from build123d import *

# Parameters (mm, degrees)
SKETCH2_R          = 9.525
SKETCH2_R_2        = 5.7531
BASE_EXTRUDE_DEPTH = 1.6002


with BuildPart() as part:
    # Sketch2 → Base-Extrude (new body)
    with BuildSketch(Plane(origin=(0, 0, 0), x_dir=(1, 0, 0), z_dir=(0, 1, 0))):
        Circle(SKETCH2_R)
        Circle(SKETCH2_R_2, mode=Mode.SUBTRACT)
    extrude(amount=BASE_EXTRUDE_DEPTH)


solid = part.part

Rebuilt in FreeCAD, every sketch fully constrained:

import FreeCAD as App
import Part
import Sketcher

V = App.Vector
Q = App.Units.Quantity

doc = App.newDocument("Part")
body = doc.addObject("PartDesign::Body", "Body")

# Sketch on XZ plane
sketch1 = body.newObject("Sketcher::SketchObject", "Sketch")
sketch1.AttachmentSupport = (doc.getObject("XZ_Plane"), [""])
sketch1.MapMode = "FlatFace"
sketch1.addGeometry(Part.Circle(V(0, 0, 0), V(0, 0, 1), 10), False)
sketch1.addGeometry(Part.Circle(V(0, 0, 0), V(0, 0, 1), 6), False)
sketch1.addConstraint(Sketcher.Constraint("Coincident", 0, 3, -1, 1))
sketch1.addConstraint(Sketcher.Constraint("Coincident", 1, 3, -1, 1))
sketch1.addConstraint(Sketcher.Constraint("Diameter", 0, Q("0.75 in")))
sketch1.addConstraint(Sketcher.Constraint("Diameter", 1, Q("0.453 in")))
pad1 = body.newObject("PartDesign::Pad", "Pad")
pad1.Profile = sketch1
pad1.Length = Q("0.063 in")
pad1.Reversed = True

doc.recompute()
